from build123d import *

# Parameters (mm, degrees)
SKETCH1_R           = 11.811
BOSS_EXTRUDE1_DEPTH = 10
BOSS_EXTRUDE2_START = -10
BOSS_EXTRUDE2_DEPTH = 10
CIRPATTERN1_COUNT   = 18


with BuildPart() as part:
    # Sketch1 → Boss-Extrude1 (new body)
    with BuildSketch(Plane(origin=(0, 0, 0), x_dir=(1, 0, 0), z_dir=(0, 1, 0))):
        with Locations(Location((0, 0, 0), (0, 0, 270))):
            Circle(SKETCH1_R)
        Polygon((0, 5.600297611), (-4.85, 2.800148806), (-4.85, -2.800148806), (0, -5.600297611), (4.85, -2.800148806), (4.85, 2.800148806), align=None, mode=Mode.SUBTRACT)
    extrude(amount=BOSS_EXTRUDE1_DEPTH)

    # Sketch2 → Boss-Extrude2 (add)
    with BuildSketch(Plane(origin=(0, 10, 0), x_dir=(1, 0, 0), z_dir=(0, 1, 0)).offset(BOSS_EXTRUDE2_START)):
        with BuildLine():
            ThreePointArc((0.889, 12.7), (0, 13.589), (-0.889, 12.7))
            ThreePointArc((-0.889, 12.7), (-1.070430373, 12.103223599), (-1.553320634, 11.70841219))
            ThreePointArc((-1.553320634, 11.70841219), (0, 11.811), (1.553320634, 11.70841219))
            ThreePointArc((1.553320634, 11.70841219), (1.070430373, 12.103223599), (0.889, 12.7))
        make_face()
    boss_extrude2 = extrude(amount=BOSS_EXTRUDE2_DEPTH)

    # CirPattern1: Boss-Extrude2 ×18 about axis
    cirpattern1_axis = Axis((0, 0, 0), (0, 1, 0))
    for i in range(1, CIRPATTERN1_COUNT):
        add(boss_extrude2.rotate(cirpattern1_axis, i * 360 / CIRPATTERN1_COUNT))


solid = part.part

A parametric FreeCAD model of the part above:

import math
import FreeCAD as App
import Part
import Sketcher
Q = App.Units.Quantity

doc = App.newDocument("Part")
body = doc.addObject("PartDesign::Body", "Body")

# Sketch on XZ plane
sketch1 = body.newObject("Sketcher::SketchObject", "Sketch")
sketch1.AttachmentSupport = (doc.getObject("XZ_Plane"), [""])
sketch1.MapMode = "FlatFace"
sketch1.addGeometry(Part.Circle(App.Vector(0, 0, 0), App.Vector(0, 0, 1), 12), False)
sketch1.addGeometry(Part.LineSegment(App.Vector(-5, -3, 0), App.Vector(0, -6, 0)), False)
sketch1.addGeometry(Part.LineSegment(App.Vector(0, -6, 0), App.Vector(5, -3, 0)), False)
sketch1.addGeometry(Part.LineSegment(App.Vector(5, -3, 0), App.Vector(5, 3, 0)), False)
sketch1.addGeometry(Part.LineSegment(App.Vector(5, 3, 0), App.Vector(0, 6, 0)), False)
sketch1.addGeometry(Part.LineSegment(App.Vector(0, 6, 0), App.Vector(-5, 3, 0)), False)
sketch1.addGeometry(Part.LineSegment(App.Vector(-5, 3, 0), App.Vector(-5, -3, 0)), False)
sketch1.addConstraint(Sketcher.Constraint("Coincident", 1, 2, 2, 1))
sketch1.addConstraint(Sketcher.Constraint("Coincident", 2, 2, 3, 1))
sketch1.addConstraint(Sketcher.Constraint("Coincident", 3, 2, 4, 1))
sketch1.addConstraint(Sketcher.Constraint("Coincident", 4, 2, 5, 1))
sketch1.addConstraint(Sketcher.Constraint("Coincident", 5, 2, 6, 1))
sketch1.addConstraint(Sketcher.Constraint("Coincident", 6, 2, 1, 1))
sketch1.addConstraint(Sketcher.Constraint("Vertical", 3))
sketch1.addConstraint(Sketcher.Constraint("Vertical", 6))
sketch1.addConstraint(Sketcher.Constraint("Coincident", 0, 3, -1, 1))
sketch1.addConstraint(Sketcher.Constraint("Symmetric", 1, 2, 4, 2, -1, 1))
sketch1.addConstraint(Sketcher.Constraint("Symmetric", 2, 2, 5, 2, -1, 1))
sketch1.addConstraint(Sketcher.Constraint("PointOnObject", 1, 2, -2))
sketch1.addConstraint(Sketcher.Constraint("Parallel", 1, 4))
sketch1.addConstraint(Sketcher.Constraint("Horizontal", 3, 2, 5, 2))
sketch1.addConstraint(Sketcher.Constraint("Diameter", 0, Q("0.93 in")))
sketch1.addConstraint(Sketcher.Constraint("Angle", 1, Q("-30 deg")))
sketch1.addConstraint(Sketcher.Constraint("DistanceX", -1, 1, 2, 2, 4.85))
sketch1.addConstraint(Sketcher.Constraint("DistanceY", 3, 1, 3, 2, 5.600298))
pad1 = body.newObject("PartDesign::Pad", "Pad")
pad1.Profile = sketch1
pad1.Length = 10
pad1.Reversed = True

# Sketch on XZ plane
sketch2 = body.newObject("Sketcher::SketchObject", "Sketch001")
sketch2.AttachmentSupport = (doc.getObject("XZ_Plane"), [""])
sketch2.MapMode = "FlatFace"
sketch2.addGeometry(Part.ArcOfCircle(Part.Circle(App.Vector(0, -12.7, 0), App.Vector(0, 0, 1), 0.9), math.radians(180), math.radians(360)), False)
sketch2.addGeometry(Part.ArcOfCircle(Part.Circle(App.Vector(-2, -12.7, 0), App.Vector(0, 0, 1), 1.1), math.radians(0), math.radians(68)), False)
sketch2.addGeometry(Part.ArcOfCircle(Part.Circle(App.Vector(0, 0, 0), App.Vector(0, 0, 1), 11.8), math.radians(-97.56), math.radians(-82.44)), False)
sketch2.addGeometry(Part.ArcOfCircle(Part.Circle(App.Vector(2, -12.7, 0), App.Vector(0, 0, 1), 1.1), math.radians(112), math.radians(180)), False)
sketch2.addConstraint(Sketcher.Constraint("Tangent", 0, 1, 1, 1))
sketch2.addConstraint(Sketcher.Constraint("Coincident", 1, 2, 2, 1))
sketch2.addConstraint(Sketcher.Constraint("Coincident", 2, 2, 3, 1))
sketch2.addConstraint(Sketcher.Constraint("Tangent", 3, 2, 0, 2))
sketch2.addConstraint(Sketcher.Constraint("Coincident", 2, 3, -1, 1))
sketch2.addConstraint(Sketcher.Constraint("Equal", 1, 3))
sketch2.addConstraint(Sketcher.Constraint("Symmetric", 1, 3, 3, 3, -2))
sketch2.addConstraint(Sketcher.Constraint("Horizontal", 0, 3, 1, 3))
sketch2.addConstraint(Sketcher.Constraint("Radius", 0, Q("0.035 in")))
sketch2.addConstraint(Sketcher.Constraint("Radius", 2, Q("0.465 in")))
sketch2.addConstraint(Sketcher.Constraint("DistanceY", 0, 3, -1, 1, Q("0.5 in")))
sketch2.addConstraint(Sketcher.Constraint("Radius", 1, 1.072199))
pad2 = body.newObject("PartDesign::Pad", "Pad001")
pad2.Profile = sketch2
pad2.Length = 10
pad2.Reversed = True
doc.recompute()

polarpattern = body.newObject("PartDesign::PolarPattern", "PolarPattern")
polarpattern.Originals = [pad2]
polarpattern.Axis = (doc.getObject("Y_Axis"), [""])
polarpattern.Angle = 360
polarpattern.Occurrences = 18
body.Tip = polarpattern

doc.recompute()
